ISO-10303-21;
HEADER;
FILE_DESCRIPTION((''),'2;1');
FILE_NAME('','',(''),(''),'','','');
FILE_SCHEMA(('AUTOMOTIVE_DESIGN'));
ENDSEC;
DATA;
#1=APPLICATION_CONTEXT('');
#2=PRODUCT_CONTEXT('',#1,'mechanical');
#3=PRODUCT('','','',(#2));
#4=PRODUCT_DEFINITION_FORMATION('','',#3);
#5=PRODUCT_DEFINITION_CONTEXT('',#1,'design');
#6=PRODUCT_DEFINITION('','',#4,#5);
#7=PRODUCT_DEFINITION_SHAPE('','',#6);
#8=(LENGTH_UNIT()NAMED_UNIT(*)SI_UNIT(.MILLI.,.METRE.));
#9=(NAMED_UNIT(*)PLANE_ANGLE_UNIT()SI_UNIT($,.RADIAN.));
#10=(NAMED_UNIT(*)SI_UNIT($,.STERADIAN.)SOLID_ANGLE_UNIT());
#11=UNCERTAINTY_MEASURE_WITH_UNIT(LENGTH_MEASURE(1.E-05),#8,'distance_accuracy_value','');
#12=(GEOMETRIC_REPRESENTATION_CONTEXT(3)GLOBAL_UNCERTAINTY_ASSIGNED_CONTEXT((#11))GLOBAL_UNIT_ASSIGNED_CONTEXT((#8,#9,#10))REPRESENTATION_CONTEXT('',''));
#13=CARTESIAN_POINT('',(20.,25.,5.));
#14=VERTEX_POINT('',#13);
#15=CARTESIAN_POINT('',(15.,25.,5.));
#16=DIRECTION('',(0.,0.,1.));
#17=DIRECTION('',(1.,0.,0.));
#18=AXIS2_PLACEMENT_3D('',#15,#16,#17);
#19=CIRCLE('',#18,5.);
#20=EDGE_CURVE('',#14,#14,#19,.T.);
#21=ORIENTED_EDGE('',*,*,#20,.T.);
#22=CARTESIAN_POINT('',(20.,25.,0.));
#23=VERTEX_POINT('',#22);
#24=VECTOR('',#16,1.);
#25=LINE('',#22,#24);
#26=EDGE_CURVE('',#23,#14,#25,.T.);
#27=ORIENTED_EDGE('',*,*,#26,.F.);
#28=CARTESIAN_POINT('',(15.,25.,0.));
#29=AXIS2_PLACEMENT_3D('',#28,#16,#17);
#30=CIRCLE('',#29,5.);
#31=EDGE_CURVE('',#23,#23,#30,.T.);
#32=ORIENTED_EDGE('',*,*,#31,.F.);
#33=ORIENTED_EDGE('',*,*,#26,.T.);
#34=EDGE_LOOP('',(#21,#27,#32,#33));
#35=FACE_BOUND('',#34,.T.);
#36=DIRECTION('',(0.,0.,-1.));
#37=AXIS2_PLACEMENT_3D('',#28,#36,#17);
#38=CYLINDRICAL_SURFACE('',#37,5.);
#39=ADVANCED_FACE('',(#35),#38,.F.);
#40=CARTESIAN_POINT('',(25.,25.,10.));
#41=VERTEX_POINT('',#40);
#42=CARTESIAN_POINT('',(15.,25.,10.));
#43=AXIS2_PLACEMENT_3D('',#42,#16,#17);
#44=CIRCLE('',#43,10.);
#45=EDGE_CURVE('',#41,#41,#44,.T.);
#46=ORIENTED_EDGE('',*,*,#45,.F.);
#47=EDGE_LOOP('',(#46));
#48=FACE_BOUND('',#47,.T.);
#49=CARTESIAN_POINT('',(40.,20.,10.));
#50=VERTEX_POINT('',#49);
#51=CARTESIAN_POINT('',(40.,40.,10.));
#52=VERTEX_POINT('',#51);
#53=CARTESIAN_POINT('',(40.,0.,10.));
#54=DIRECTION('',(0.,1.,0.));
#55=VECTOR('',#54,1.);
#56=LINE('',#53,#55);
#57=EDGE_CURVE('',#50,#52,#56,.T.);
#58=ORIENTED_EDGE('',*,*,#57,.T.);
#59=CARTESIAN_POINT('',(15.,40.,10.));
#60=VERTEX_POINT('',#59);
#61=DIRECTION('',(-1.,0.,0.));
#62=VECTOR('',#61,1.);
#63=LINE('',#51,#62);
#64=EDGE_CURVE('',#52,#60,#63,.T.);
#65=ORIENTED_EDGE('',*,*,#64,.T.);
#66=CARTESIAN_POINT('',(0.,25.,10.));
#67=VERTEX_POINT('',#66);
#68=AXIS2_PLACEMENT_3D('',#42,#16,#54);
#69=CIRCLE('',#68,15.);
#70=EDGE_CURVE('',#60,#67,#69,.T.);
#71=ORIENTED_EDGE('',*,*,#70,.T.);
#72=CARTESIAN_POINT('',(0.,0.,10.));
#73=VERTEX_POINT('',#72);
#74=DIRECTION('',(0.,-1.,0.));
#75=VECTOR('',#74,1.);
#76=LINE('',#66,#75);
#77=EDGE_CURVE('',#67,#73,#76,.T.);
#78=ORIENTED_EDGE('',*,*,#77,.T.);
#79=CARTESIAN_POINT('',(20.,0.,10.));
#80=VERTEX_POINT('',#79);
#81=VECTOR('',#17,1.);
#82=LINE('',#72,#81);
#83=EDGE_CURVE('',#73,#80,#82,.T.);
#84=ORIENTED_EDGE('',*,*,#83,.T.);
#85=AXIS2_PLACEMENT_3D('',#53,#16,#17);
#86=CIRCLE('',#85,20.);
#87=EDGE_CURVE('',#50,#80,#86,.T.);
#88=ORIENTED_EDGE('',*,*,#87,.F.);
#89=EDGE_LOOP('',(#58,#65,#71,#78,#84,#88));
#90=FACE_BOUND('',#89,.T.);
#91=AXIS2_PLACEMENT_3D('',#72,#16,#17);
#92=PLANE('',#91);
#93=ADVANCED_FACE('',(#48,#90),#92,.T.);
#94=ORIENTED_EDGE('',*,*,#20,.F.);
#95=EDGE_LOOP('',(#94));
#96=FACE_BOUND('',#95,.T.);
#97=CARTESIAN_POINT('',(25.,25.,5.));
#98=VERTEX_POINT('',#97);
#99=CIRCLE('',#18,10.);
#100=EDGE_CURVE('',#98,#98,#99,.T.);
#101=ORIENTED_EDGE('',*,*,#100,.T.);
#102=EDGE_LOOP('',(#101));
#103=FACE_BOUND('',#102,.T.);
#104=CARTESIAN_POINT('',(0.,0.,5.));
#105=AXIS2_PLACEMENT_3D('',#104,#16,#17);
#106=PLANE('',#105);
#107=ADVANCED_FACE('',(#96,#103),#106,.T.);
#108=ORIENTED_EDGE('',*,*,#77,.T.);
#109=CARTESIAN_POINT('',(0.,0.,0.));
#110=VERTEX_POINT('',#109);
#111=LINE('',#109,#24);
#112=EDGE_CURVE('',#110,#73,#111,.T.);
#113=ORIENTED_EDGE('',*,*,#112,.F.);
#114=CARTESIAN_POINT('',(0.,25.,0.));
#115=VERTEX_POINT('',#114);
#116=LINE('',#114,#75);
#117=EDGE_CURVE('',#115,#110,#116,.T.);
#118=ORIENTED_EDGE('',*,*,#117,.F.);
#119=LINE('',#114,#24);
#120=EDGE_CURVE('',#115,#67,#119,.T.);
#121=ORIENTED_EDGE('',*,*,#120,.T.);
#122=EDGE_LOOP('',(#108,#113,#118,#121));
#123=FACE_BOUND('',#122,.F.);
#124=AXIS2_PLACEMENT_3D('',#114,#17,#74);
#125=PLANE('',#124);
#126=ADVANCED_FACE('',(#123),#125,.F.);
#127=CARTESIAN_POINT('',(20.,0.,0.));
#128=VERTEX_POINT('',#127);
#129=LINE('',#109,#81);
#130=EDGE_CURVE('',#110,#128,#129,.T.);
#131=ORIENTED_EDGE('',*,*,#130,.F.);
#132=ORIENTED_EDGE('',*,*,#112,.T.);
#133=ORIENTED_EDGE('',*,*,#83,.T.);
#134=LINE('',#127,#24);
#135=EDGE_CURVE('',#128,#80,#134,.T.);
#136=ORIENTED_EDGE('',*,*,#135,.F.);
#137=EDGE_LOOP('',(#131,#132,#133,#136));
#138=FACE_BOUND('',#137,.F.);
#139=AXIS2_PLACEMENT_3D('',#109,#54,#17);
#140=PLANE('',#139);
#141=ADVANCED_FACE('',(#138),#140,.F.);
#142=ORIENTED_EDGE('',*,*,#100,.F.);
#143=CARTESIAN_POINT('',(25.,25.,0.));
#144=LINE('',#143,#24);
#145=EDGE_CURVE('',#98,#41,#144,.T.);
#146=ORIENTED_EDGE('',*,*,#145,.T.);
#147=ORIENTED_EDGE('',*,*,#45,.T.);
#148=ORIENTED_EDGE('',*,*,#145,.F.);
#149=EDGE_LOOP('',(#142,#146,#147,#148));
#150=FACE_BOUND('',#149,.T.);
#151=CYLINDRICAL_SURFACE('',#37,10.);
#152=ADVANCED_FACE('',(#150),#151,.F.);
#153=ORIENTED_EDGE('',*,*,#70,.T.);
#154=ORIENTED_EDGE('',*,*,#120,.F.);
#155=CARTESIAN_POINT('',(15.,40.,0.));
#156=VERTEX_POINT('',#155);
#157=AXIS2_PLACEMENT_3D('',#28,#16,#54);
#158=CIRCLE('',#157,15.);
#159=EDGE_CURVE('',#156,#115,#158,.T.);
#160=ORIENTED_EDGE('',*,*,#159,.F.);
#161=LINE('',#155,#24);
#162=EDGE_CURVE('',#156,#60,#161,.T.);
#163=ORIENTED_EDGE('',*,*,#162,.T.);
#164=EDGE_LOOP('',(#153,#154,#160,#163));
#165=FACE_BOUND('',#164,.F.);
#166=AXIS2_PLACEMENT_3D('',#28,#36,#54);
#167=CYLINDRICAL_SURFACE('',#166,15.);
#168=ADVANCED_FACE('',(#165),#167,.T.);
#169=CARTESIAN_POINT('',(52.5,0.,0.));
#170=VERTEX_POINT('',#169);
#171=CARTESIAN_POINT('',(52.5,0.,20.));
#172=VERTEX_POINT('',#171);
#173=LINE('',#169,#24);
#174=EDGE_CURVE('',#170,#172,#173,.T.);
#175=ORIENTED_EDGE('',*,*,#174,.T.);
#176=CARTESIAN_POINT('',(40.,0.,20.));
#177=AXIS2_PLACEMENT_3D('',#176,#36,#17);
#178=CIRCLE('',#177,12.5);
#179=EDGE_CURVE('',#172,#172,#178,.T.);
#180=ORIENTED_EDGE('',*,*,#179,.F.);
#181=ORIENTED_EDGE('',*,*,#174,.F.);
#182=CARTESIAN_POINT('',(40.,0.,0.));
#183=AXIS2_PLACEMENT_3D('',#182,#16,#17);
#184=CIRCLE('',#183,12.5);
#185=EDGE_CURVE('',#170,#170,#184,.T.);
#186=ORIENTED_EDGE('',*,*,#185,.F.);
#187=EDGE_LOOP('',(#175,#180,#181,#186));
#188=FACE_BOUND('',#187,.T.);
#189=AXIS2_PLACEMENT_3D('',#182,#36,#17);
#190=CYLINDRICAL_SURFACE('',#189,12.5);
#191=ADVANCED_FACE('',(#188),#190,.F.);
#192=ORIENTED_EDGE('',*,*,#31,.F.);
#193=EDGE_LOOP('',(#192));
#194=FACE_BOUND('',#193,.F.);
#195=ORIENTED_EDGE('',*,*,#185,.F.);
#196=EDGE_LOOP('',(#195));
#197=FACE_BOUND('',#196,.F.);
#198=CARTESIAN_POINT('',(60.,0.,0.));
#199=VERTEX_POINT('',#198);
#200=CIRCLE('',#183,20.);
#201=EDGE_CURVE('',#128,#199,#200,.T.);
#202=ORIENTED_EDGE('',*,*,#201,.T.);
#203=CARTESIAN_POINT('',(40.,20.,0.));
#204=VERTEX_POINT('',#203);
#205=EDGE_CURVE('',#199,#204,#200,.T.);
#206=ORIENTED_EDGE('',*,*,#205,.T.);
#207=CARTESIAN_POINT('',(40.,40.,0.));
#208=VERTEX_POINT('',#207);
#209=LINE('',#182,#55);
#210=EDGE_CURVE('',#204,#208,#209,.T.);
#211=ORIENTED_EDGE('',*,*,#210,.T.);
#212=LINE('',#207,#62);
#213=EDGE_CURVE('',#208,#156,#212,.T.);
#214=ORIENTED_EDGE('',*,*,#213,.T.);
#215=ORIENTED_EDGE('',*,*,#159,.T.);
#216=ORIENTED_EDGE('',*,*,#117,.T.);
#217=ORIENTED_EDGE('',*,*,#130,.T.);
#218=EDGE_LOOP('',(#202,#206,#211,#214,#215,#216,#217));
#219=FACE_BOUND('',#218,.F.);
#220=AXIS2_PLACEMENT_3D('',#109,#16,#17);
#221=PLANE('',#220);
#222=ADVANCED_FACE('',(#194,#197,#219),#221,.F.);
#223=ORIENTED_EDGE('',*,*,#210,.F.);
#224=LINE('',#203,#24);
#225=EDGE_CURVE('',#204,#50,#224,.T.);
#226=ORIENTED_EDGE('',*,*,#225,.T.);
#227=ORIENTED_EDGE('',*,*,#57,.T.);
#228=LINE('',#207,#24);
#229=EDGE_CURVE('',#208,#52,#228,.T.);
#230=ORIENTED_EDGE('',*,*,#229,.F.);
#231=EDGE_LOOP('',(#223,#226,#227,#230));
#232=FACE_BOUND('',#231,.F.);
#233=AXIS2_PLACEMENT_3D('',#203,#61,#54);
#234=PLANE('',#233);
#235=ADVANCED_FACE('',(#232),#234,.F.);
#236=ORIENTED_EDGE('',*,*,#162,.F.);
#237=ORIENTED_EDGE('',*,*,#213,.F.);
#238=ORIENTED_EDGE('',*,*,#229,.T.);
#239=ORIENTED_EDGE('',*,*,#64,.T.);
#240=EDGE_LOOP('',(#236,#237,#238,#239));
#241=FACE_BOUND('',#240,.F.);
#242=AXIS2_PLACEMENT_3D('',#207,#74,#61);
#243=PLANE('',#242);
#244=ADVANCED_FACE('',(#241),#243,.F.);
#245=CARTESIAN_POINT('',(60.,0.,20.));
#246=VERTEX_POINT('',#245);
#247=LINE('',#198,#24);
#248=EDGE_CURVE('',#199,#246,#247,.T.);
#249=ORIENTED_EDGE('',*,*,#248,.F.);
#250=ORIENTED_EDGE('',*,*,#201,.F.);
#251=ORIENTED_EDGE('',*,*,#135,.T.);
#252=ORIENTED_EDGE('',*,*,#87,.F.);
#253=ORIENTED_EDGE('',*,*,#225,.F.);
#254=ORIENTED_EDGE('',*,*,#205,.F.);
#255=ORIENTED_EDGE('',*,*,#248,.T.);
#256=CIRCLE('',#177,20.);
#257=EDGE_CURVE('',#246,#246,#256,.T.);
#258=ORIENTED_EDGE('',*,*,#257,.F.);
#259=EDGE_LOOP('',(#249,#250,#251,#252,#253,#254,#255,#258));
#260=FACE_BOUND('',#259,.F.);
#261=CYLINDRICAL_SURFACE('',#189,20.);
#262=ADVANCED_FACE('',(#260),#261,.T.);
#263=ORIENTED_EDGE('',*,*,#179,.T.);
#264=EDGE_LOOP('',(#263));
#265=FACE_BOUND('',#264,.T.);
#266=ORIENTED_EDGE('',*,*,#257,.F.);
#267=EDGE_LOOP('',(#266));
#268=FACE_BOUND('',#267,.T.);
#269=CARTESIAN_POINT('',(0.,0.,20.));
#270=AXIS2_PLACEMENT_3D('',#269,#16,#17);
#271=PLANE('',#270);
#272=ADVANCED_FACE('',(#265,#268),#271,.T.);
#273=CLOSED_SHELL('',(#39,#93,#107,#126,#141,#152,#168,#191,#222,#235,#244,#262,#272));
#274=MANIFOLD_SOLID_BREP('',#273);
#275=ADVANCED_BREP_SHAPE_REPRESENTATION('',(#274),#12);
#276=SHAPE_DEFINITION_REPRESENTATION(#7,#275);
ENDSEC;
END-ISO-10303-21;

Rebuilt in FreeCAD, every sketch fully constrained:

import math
import FreeCAD as App
import Part
import Sketcher
from FreeCAD import Vector
Q = App.Units.Quantity

doc = App.newDocument("Part")
params = doc.addObject("Spreadsheet::Sheet", "Params")
for row, (alias, value) in enumerate([
    ("sketch1_diameter", "40 mm"),
    ("sketch1_diameter2", "25 mm"),
    ("pad1_length", "20 mm"),
    ("sketch2_diameter", "20 mm"),
    ("sketch2_radius", "20 mm"),
    ("sketch2_radius2", "15 mm"),
    ("sketch2_width", "20 mm"),
    ("pad2_length", "10 mm"),
    ("sketch3_diameter", "20 mm"),
    ("sketch3_diameter2", "10 mm"),
    ("pad3_length", "5 mm"),
], start=1):
    params.set(f"A{row}", alias)
    params.set(f"B{row}", "=" + value)
    params.setAlias(f"B{row}", alias)

body = doc.addObject("PartDesign::Body", "Body")

sketch1 = body.newObject("Sketcher::SketchObject", "Sketch")
sketch1.AttachmentSupport = (doc.getObject("XY_Plane"), [""])
sketch1.MapMode = "FlatFace"
sketch1.addGeometry([
    Part.Circle(Vector(40, 0, 0), Vector(0, 0, 1), 20),
    Part.Circle(Vector(40, 0, 0), Vector(0, 0, 1), 12),
], False)
sketch1.addConstraint([
    Sketcher.Constraint("Coincident", 1, 3, 0, 3),
    Sketcher.Constraint("PointOnObject", 0, 3, -1),
    Sketcher.Constraint("Diameter", 0, Q("40 mm")),
    Sketcher.Constraint("Diameter", 1, Q("25 mm")),
    Sketcher.Constraint("DistanceX", -1, 1, 0, 3, Q("40 mm")),
])
sketch1.setExpression("Constraints[2]", "Params.sketch1_diameter")
sketch1.setExpression("Constraints[3]", "Params.sketch1_diameter2")
pad1 = body.newObject("PartDesign::Pad", "Pad")
pad1.Profile = sketch1
pad1.setExpression("Length", "Params.pad1_length")

sketch2 = body.newObject("Sketcher::SketchObject", "Sketch001")
sketch2.AttachmentSupport = (doc.getObject("XY_Plane"), [""])
sketch2.MapMode = "FlatFace"
sketch2.addGeometry([
    Part.LineSegment(Vector(0, 25, 0), Vector(0, 0, 0)),
    Part.LineSegment(Vector(0, 0, 0), Vector(20, 0, 0)),
    Part.ArcOfCircle(Part.Circle(Vector(40, 0, 0), Vector(0, 0, 1), 20), math.radians(90), math.radians(180)),
    Part.LineSegment(Vector(40, 20, 0), Vector(40, 40, 0)),
    Part.LineSegment(Vector(40, 40, 0), Vector(15, 40, 0)),
    Part.ArcOfCircle(Part.Circle(Vector(15, 25, 0), Vector(0, 0, 1), 15), math.radians(90), math.radians(180)),
    Part.Circle(Vector(15, 25, 0), Vector(0, 0, 1), 10),
], False)
sketch2.addConstraint([
    Sketcher.Constraint("Coincident", 0, 2, 1, 1),
    Sketcher.Constraint("Coincident", 1, 2, 2, 2),
    Sketcher.Constraint("Coincident", 2, 1, 3, 1),
    Sketcher.Constraint("Coincident", 3, 2, 4, 1),
    Sketcher.Constraint("Tangent", 4, 2, 5, 1),
    Sketcher.Constraint("Tangent", 5, 2, 0, 1),
    Sketcher.Constraint("Vertical", 0),
    Sketcher.Constraint("Horizontal", 1),
    Sketcher.Constraint("Vertical", 3),
    Sketcher.Constraint("Horizontal", 4),
    Sketcher.Constraint("Coincident", 0, 2, -1, 1),
    Sketcher.Constraint("Coincident", 6, 3, 5, 3),
    Sketcher.Constraint("PointOnObject", 2, 3, -1),
    Sketcher.Constraint("Equal", 4, 0),
    Sketcher.Constraint("Equal", 1, 3),
    Sketcher.Constraint("Diameter", 6, Q("20 mm")),
    Sketcher.Constraint("Radius", 2, Q("20 mm")),
    Sketcher.Constraint("Radius", 5, Q("15 mm")),
    Sketcher.Constraint("DistanceX", 1, 1, 1, 2, Q("20 mm")),
])
sketch2.setExpression("Constraints[15]", "Params.sketch2_diameter")
sketch2.setExpression("Constraints[16]", "Params.sketch2_radius")
sketch2.setExpression("Constraints[17]", "Params.sketch2_radius2")
sketch2.setExpression("Constraints[18]", "Params.sketch2_width")
pad2 = body.newObject("PartDesign::Pad", "Pad001")
pad2.Profile = sketch2
pad2.setExpression("Length", "Params.pad2_length")

sketch3 = body.newObject("Sketcher::SketchObject", "Sketch002")
sketch3.AttachmentSupport = (doc.getObject("XY_Plane"), [""])
sketch3.MapMode = "FlatFace"
sketch3.addGeometry([
    Part.Circle(Vector(15, 25, 0), Vector(0, 0, 1), 10),
    Part.Circle(Vector(15, 25, 0), Vector(0, 0, 1), 5),
], False)
sketch3.addConstraint([
    Sketcher.Constraint("Coincident", 1, 3, 0, 3),
    Sketcher.Constraint("Diameter", 0, Q("20 mm")),
    Sketcher.Constraint("Diameter", 1, Q("10 mm")),
    Sketcher.Constraint("DistanceX", -1, 1, 0, 3, Q("15 mm")),
    Sketcher.Constraint("DistanceY", -1, 1, 0, 3, Q("25 mm")),
])
sketch3.setExpression("Constraints[1]", "Params.sketch3_diameter")
sketch3.setExpression("Constraints[2]", "Params.sketch3_diameter2")
pad3 = body.newObject("PartDesign::Pad", "Pad002")
pad3.Profile = sketch3
pad3.setExpression("Length", "Params.pad3_length")

doc.recompute()
